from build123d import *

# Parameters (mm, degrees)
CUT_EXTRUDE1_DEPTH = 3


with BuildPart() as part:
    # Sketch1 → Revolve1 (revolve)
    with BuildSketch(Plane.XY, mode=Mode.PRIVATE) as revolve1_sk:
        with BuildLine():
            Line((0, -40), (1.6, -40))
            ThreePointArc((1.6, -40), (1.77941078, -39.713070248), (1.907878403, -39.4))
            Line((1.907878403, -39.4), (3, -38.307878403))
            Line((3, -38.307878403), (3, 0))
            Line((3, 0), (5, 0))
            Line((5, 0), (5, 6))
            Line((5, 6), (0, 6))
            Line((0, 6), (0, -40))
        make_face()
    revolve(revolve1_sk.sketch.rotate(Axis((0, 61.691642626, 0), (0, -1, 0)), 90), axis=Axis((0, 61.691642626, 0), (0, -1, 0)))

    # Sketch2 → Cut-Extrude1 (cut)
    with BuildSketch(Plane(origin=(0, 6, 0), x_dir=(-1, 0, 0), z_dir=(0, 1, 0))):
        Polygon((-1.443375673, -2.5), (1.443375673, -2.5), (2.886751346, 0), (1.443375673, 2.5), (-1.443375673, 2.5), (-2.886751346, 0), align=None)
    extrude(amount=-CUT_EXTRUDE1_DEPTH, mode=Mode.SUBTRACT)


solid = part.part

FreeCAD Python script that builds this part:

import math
import FreeCAD as App
import Part
import Sketcher

V = App.Vector
Q = App.Units.Quantity

doc = App.newDocument("Part")
params = doc.addObject("Spreadsheet::Sheet", "Params")
for row, (alias, value) in enumerate([
    ("sketch1_radius", "2 mm"),
    ("sketch1_width", "2 mm"),
    ("sketch1_width2", "5 mm"),
    ("sketch1_height", "6 mm"),
    ("sketch1_height2", "46 mm"),
    ("revolution_angle", "360 deg"),
    ("pocket1_length", "3 mm"),
], start=1):
    params.set(f"A{row}", alias)
    params.set(f"B{row}", "=" + value)
    params.setAlias(f"B{row}", alias)

body = doc.addObject("PartDesign::Body", "Body")

sketch1 = doc.addObject("Sketcher::SketchObject", "Sketch")
body.addObject(sketch1)
sketch1.AttachmentSupport = (doc.XY_Plane, [""])
sketch1.MapMode = "FlatFace"
sketch1.addGeometry([
    Part.LineSegment(V(0, -40, 0), V(1.6, -40, 0)),
    Part.ArcOfCircle(Part.Circle(V(0, -38.8, 0), V(0, 0, 1), 2), math.radians(-36.87), math.radians(-17.46)),
    Part.LineSegment(V(1.9, -39.4, 0), V(3, -38.3, 0)),
    Part.LineSegment(V(3, -38.3, 0), V(3, 0, 0)),
    Part.LineSegment(V(3, 0, 0), V(5, 0, 0)),
    Part.LineSegment(V(5, 0, 0), V(5, 6, 0)),
    Part.LineSegment(V(5, 6, 0), V(0, 6, 0)),
    Part.LineSegment(V(0, 6, 0), V(0, -40, 0)),
], False)
sketch1.addConstraint([
    Sketcher.Constraint("Coincident", 0, 2, 1, 1),
    Sketcher.Constraint("Coincident", 1, 2, 2, 1),
    Sketcher.Constraint("Coincident", 2, 2, 3, 1),
    Sketcher.Constraint("Coincident", 3, 2, 4, 1),
    Sketcher.Constraint("Coincident", 4, 2, 5, 1),
    Sketcher.Constraint("Coincident", 5, 2, 6, 1),
    Sketcher.Constraint("Coincident", 6, 2, 7, 1),
    Sketcher.Constraint("Coincident", 7, 2, 0, 1),
    Sketcher.Constraint("Horizontal", 0),
    Sketcher.Constraint("Vertical", 3),
    Sketcher.Constraint("Horizontal", 4),
    Sketcher.Constraint("Vertical", 5),
    Sketcher.Constraint("Horizontal", 6),
    Sketcher.Constraint("Vertical", 7),
    Sketcher.Constraint("PointOnObject", 1, 3, -2),
    Sketcher.Constraint("PointOnObject", 3, 2, -1),
    Sketcher.Constraint("PointOnObject", 6, 2, -2),
    Sketcher.Constraint("Radius", 1, Q("2 mm")),
    Sketcher.Constraint("DistanceX", 4, 1, 4, 2, Q("2 mm")),
    Sketcher.Constraint("DistanceX", 6, 2, 6, 1, Q("5 mm")),
    Sketcher.Constraint("DistanceY", 5, 1, 5, 2, Q("6 mm")),
    Sketcher.Constraint("DistanceY", 7, 2, 7, 1, Q("46 mm")),
    Sketcher.Constraint("Angle", 2, Q("45 deg")),
    Sketcher.Constraint("DistanceX", 0, 1, 0, 2, Q("1.6 mm")),
    Sketcher.Constraint("DistanceY", 1, 2, -1, 1, Q("39.4 mm")),
])
sketch1.setExpression("Constraints[17]", "Params.sketch1_radius")
sketch1.setExpression("Constraints[18]", "Params.sketch1_width")
sketch1.setExpression("Constraints[19]", "Params.sketch1_width2")
sketch1.setExpression("Constraints[20]", "Params.sketch1_height")
sketch1.setExpression("Constraints[21]", "Params.sketch1_height2")
revolution = doc.addObject("PartDesign::Revolution", "Revolution")
body.addObject(revolution)
revolution.Profile = sketch1
revolution.ReferenceAxis = (sketch1, ["V_Axis"])
revolution.setExpression("Angle", "Params.revolution_angle")

sketch2 = doc.addObject("Sketcher::SketchObject", "Sketch001")
body.addObject(sketch2)
sketch2.AttachmentSupport = (doc.XZ_Plane, [""])
sketch2.MapMode = "FlatFace"
sketch2.AttachmentOffset = App.Placement(V(0, 0, -6), App.Rotation())
sketch2.addGeometry([
    Part.LineSegment(V(1.4, -2.5, 0), V(-1.4, -2.5, 0)),
    Part.LineSegment(V(-1.4, -2.5, 0), V(-2.9, 0, 0)),
    Part.LineSegment(V(-2.9, 0, 0), V(-1.4, 2.5, 0)),
    Part.LineSegment(V(-1.4, 2.5, 0), V(1.4, 2.5, 0)),
    Part.LineSegment(V(1.4, 2.5, 0), V(2.9, 0, 0)),
    Part.LineSegment(V(2.9, 0, 0), V(1.4, -2.5, 0)),
], False)
sketch2.addConstraint([
    Sketcher.Constraint("Coincident", 0, 2, 1, 1),
    Sketcher.Constraint("Coincident", 1, 2, 2, 1),
    Sketcher.Constraint("Coincident", 2, 2, 3, 1),
    Sketcher.Constraint("Coincident", 3, 2, 4, 1),
    Sketcher.Constraint("Coincident", 4, 2, 5, 1),
    Sketcher.Constraint("Coincident", 5, 2, 0, 1),
    Sketcher.Constraint("Horizontal", 0),
    Sketcher.Constraint("Horizontal", 3),
    Sketcher.Constraint("Symmetric", 0, 2, 3, 2, -1, 1),
    Sketcher.Constraint("Symmetric", 1, 2, 4, 2, -1, 1),
    Sketcher.Constraint("PointOnObject", 1, 2, -1),
    Sketcher.Constraint("Parallel", 2, 5),
    Sketcher.Constraint("Vertical", 0, 2, 2, 2),
    Sketcher.Constraint("Angle", 1, Q("120 deg")),
    Sketcher.Constraint("DistanceY", 0, 2, 2, 2, Q("5 mm")),
    Sketcher.Constraint("DistanceX", 0, 2, 0, 1, Q("2.886751 mm")),
])
pocket1 = doc.addObject("PartDesign::Pocket", "Pocket")
body.addObject(pocket1)
pocket1.Profile = sketch2
pocket1.setExpression("Length", "Params.pocket1_length")
pocket1.Reversed = True

doc.recompute()
